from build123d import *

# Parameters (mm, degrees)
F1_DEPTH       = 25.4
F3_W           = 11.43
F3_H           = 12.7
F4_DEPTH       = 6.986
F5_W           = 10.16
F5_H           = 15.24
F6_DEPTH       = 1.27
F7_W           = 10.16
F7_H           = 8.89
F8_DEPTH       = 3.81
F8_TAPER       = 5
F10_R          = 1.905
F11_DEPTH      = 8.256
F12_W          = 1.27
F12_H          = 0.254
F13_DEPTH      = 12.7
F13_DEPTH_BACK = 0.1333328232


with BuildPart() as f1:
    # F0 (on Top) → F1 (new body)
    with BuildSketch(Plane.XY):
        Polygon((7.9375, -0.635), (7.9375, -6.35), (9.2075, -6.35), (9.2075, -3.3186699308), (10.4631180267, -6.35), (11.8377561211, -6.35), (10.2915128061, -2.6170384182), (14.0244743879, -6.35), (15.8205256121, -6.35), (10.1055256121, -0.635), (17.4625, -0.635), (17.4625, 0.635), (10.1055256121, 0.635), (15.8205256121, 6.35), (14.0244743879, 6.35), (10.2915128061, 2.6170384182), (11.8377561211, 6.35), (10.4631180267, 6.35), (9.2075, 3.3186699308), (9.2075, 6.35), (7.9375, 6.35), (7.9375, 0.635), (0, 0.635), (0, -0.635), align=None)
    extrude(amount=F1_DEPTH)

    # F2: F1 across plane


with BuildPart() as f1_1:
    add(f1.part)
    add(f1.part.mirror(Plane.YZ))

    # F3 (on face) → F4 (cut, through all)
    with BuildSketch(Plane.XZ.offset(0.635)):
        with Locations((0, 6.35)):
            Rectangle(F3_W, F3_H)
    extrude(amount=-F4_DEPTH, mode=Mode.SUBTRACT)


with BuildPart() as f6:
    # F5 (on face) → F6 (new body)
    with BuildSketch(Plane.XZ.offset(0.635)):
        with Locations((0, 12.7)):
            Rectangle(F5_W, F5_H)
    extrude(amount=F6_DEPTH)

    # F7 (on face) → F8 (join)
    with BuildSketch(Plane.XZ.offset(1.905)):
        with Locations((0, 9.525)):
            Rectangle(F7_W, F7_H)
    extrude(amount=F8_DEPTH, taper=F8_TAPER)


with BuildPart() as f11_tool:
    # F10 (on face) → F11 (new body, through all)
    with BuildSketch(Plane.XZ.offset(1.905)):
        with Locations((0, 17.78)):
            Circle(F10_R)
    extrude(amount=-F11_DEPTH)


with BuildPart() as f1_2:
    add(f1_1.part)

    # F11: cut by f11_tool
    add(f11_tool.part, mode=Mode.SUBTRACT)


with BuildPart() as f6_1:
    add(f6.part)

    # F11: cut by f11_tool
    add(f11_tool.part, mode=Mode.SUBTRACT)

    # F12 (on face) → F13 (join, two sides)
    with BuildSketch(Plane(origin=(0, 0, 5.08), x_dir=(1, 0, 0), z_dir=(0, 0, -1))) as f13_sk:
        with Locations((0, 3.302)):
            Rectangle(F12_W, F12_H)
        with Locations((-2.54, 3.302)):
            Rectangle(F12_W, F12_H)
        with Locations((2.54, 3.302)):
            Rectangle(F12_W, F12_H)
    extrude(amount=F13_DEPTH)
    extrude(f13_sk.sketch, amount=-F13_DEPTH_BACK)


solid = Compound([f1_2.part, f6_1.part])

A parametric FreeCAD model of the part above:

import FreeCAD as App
import Part
import Sketcher
from FreeCAD import Vector
Q = App.Units.Quantity

doc = App.newDocument("Part")
body = doc.addObject("PartDesign::Body", "Body")

# Sketch on XY plane
sketch1 = body.newObject("Sketcher::SketchObject", "Sketch")
sketch1.AttachmentSupport = (doc.getObject("XY_Plane"), [""])
sketch1.MapMode = "FlatFace"
sketch1.addGeometry([
    Part.LineSegment(Vector(7.9, -0.6, 0), Vector(7.9, -6.3, 0)),  # 0
    Part.LineSegment(Vector(7.9, -6.3, 0), Vector(9.2, -6.3, 0)),  # 1
    Part.LineSegment(Vector(9.2, -6.3, 0), Vector(9.2, -3.3, 0)),  # 2
    Part.LineSegment(Vector(9.2, -3.3, 0), Vector(10.5, -6.3, 0)),  # 3
    Part.LineSegment(Vector(10.5, -6.3, 0), Vector(11.8, -6.3, 0)),  # 4
    Part.LineSegment(Vector(11.8, -6.3, 0), Vector(10.3, -2.6, 0)),  # 5
    Part.LineSegment(Vector(10.3, -2.6, 0), Vector(14, -6.3, 0)),  # 6
    Part.LineSegment(Vector(14, -6.3, 0), Vector(15.8, -6.3, 0)),  # 7
    Part.LineSegment(Vector(15.8, -6.3, 0), Vector(10.1, -0.6, 0)),  # 8
    Part.LineSegment(Vector(10.1, -0.6, 0), Vector(17.5, -0.6, 0)),  # 9
    Part.LineSegment(Vector(17.5, -0.6, 0), Vector(17.5, 0.6, 0)),  # 10
    Part.LineSegment(Vector(17.5, 0.6, 0), Vector(10.1, 0.6, 0)),  # 11
    Part.LineSegment(Vector(10.1, 0.6, 0), Vector(15.8, 6.3, 0)),  # 12
    Part.LineSegment(Vector(15.8, 6.3, 0), Vector(14, 6.3, 0)),  # 13
    Part.LineSegment(Vector(14, 6.3, 0), Vector(10.3, 2.6, 0)),  # 14
    Part.LineSegment(Vector(10.3, 2.6, 0), Vector(11.8, 6.3, 0)),  # 15
    Part.LineSegment(Vector(11.8, 6.3, 0), Vector(10.5, 6.3, 0)),  # 16
    Part.LineSegment(Vector(10.5, 6.3, 0), Vector(9.2, 3.3, 0)),  # 17
    Part.LineSegment(Vector(9.2, 3.3, 0), Vector(9.2, 6.3, 0)),  # 18
    Part.LineSegment(Vector(9.2, 6.3, 0), Vector(7.9, 6.3, 0)),  # 19
    Part.LineSegment(Vector(7.9, 6.3, 0), Vector(7.9, 0.6, 0)),  # 20
    Part.LineSegment(Vector(7.9, 0.6, 0), Vector(0, 0.6, 0)),  # 21
    Part.LineSegment(Vector(0, 0.6, 0), Vector(0, -0.6, 0)),  # 22
    Part.LineSegment(Vector(0, -0.6, 0), Vector(7.9, -0.6, 0)),  # 23
], False)
sketch1.addConstraint([
    Sketcher.Constraint("Coincident", 0, 2, 1, 1),
    Sketcher.Constraint("Coincident", 1, 2, 2, 1),
    Sketcher.Constraint("Coincident", 2, 2, 3, 1),
    Sketcher.Constraint("Coincident", 3, 2, 4, 1),
    Sketcher.Constraint("Coincident", 4, 2, 5, 1),
    Sketcher.Constraint("Coincident", 5, 2, 6, 1),
    Sketcher.Constraint("Coincident", 6, 2, 7, 1),
    Sketcher.Constraint("Coincident", 7, 2, 8, 1),
    Sketcher.Constraint("Coincident", 8, 2, 9, 1),
    Sketcher.Constraint("Coincident", 9, 2, 10, 1),
    Sketcher.Constraint("Coincident", 10, 2, 11, 1),
    Sketcher.Constraint("Coincident", 11, 2, 12, 1),
    Sketcher.Constraint("Coincident", 12, 2, 13, 1),
    Sketcher.Constraint("Coincident", 13, 2, 14, 1),
    Sketcher.Constraint("Coincident", 14, 2, 15, 1),
    Sketcher.Constraint("Coincident", 15, 2, 16, 1),
    Sketcher.Constraint("Coincident", 16, 2, 17, 1),
    Sketcher.Constraint("Coincident", 17, 2, 18, 1),
    Sketcher.Constraint("Coincident", 18, 2, 19, 1),
    Sketcher.Constraint("Coincident", 19, 2, 20, 1),
    Sketcher.Constraint("Coincident", 20, 2, 21, 1),
    Sketcher.Constraint("Coincident", 21, 2, 22, 1),
    Sketcher.Constraint("Coincident", 22, 2, 23, 1),
    Sketcher.Constraint("Coincident", 23, 2, 0, 1),
    Sketcher.Constraint("Vertical", 0),
    Sketcher.Constraint("Horizontal", 1),
    Sketcher.Constraint("Vertical", 2),
    Sketcher.Constraint("Horizontal", 4),
    Sketcher.Constraint("Horizontal", 7),
    Sketcher.Constraint("Horizontal", 9),
    Sketcher.Constraint("Vertical", 10),
    Sketcher.Constraint("Horizontal", 11),
    Sketcher.Constraint("Horizontal", 13),
    Sketcher.Constraint("Horizontal", 16),
    Sketcher.Constraint("Vertical", 18),
    Sketcher.Constraint("Horizontal", 19),
    Sketcher.Constraint("Vertical", 20),
    Sketcher.Constraint("Horizontal", 21),
    Sketcher.Constraint("Vertical", 22),
    Sketcher.Constraint("Horizontal", 23),
    Sketcher.Constraint("Symmetric", 21, 2, 22, 2, -1, 1),
    Sketcher.Constraint("Symmetric", 8, 2, 11, 2, -1),
    Sketcher.Constraint("Symmetric", 7, 2, 12, 2, -1),
    Sketcher.Constraint("Symmetric", 5, 2, 14, 2, -1),
    Sketcher.Constraint("Symmetric", 4, 2, 15, 2, -1),
    Sketcher.Constraint("Symmetric", 2, 2, 17, 2, -1),
    Sketcher.Constraint("Symmetric", 0, 2, 19, 2, -1),
    Sketcher.Constraint("Parallel", 3, 5),
    Sketcher.Constraint("Parallel", 6, 8),
    Sketcher.Constraint("Perpendicular", 8, 12),
    Sketcher.Constraint("Parallel", 12, 14),
    Sketcher.Constraint("Parallel", 15, 17),
    Sketcher.Constraint("Horizontal", 1, 2, 3, 2),
    Sketcher.Constraint("Horizontal", 4, 2, 6, 2),
    Sketcher.Constraint("Horizontal", 11, 2, 20, 2),
    Sketcher.Constraint("Equal", 19, 10),
    Sketcher.Constraint("DistanceX", 1, 1, 1, 2, Q("0.05 in")),
    Sketcher.Constraint("Angle", 3, Q("-67.5 deg")),
    Sketcher.Constraint("DistanceX", 21, 2, 21, 1, Q("0.3125 in")),
    Sketcher.Constraint("DistanceY", 0, 2, 0, 1, Q("0.225 in")),
    Sketcher.Constraint("DistanceX", -1, 1, 9, 2, Q("0.6875 in")),
    Sketcher.Constraint("DistanceX", 4, 1, 4, 2, 1.374638),
    Sketcher.Constraint("DistanceX", 7, 1, 7, 2, 1.796051),
    Sketcher.Constraint("DistanceY", 2, 1, 2, 2, 3.03133),
    Sketcher.Constraint("Distance", 5, 4.040529),
])
pad1 = body.newObject("PartDesign::Pad", "Pad")
pad1.Profile = sketch1
pad1.Length = Q("1 in")
body2 = doc.addObject("PartDesign::Body", "Body001")
doc.recompute()

body2.BaseFeature = body
doc.recompute()

mirroring = doc.addObject("Part::Mirroring", "Mirroring")
mirroring.Source = body
mirroring.Base = Vector(0, 0, 0)
mirroring.Normal = Vector(1, 0, 0)
body3 = doc.addObject("PartDesign::Body", "Body002")
body3.BaseFeature = mirroring
boolean = body2.newObject("PartDesign::Boolean", "Boolean")
boolean.Type = "Fuse"
boolean.addObjects([body3])
doc.recompute()

# Sketch on XZ plane
sketch2 = body2.newObject("Sketcher::SketchObject", "Sketch001")
sketch2.AttachmentSupport = (doc.getObject("XZ_Plane001"), [""])
sketch2.MapMode = "FlatFace"
sketch2.AttachmentOffset = App.Placement(Vector(0, 0, 0.025 * 25.4), App.Rotation())
sketch2.addGeometry([
    Part.LineSegment(Vector(-6, 13, 0), Vector(-6, 0, 0)),
    Part.LineSegment(Vector(-6, 0, 0), Vector(6, 0, 0)),
    Part.LineSegment(Vector(6, 0, 0), Vector(6, 13, 0)),
    Part.LineSegment(Vector(6, 13, 0), Vector(-6, 13, 0)),
], False)
sketch2.addConstraint([
    Sketcher.Constraint("Coincident", 0, 2, 1, 1),
    Sketcher.Constraint("Coincident", 1, 2, 2, 1),
    Sketcher.Constraint("Coincident", 2, 2, 3, 1),
    Sketcher.Constraint("Coincident", 3, 2, 0, 1),
    Sketcher.Constraint("Vertical", 0),
    Sketcher.Constraint("Horizontal", 1),
    Sketcher.Constraint("Vertical", 2),
    Sketcher.Constraint("Horizontal", 3),
    Sketcher.Constraint("Symmetric", 0, 2, 1, 2, -1, 1),
    Sketcher.Constraint("DistanceY", 0, 2, 0, 1, Q("0.5 in")),
    Sketcher.Constraint("DistanceX", 1, 1, 1, 2, Q("0.45 in")),
])
pocket1 = body2.newObject("PartDesign::Pocket", "Pocket")
pocket1.Profile = sketch2
pocket1.Type = "ThroughAll"
body4 = doc.addObject("PartDesign::Body", "Body003")

# Sketch on XZ plane
sketch3 = body4.newObject("Sketcher::SketchObject", "Sketch002")
sketch3.AttachmentSupport = (doc.getObject("XZ_Plane003"), [""])
sketch3.MapMode = "FlatFace"
sketch3.AttachmentOffset = App.Placement(Vector(0, 0, 0.025 * 25.4), App.Rotation())
sketch3.addGeometry([
    Part.LineSegment(Vector(-5, 20, 0), Vector(-5, 5, 0)),
    Part.LineSegment(Vector(-5, 5, 0), Vector(5, 5, 0)),
    Part.LineSegment(Vector(5, 5, 0), Vector(5, 20, 0)),
    Part.LineSegment(Vector(5, 20, 0), Vector(-5, 20, 0)),
], False)
sketch3.addConstraint([
    Sketcher.Constraint("Coincident", 0, 2, 1, 1),
    Sketcher.Constraint("Coincident", 1, 2, 2, 1),
    Sketcher.Constraint("Coincident", 2, 2, 3, 1),
    Sketcher.Constraint("Coincident", 3, 2, 0, 1),
    Sketcher.Constraint("Vertical", 0),
    Sketcher.Constraint("Horizontal", 1),
    Sketcher.Constraint("Vertical", 2),
    Sketcher.Constraint("Horizontal", 3),
    Sketcher.Constraint("DistanceX", 1, 1, 1, 2, Q("0.4 in")),
    Sketcher.Constraint("DistanceY", 0, 2, 0, 1, Q("0.6 in")),
    Sketcher.Constraint("DistanceX", 0, 2, -1, 1, Q("0.2 in")),
    Sketcher.Constraint("DistanceY", -1, 1, 0, 2, Q("0.2 in")),
])
pad2 = body4.newObject("PartDesign::Pad", "Pad001")
pad2.Profile = sketch3
pad2.Length = Q("0.05 in")

# Sketch on XZ plane
sketch4 = body4.newObject("Sketcher::SketchObject", "Sketch003")
sketch4.AttachmentSupport = (doc.getObject("XZ_Plane003"), [""])
sketch4.MapMode = "FlatFace"
sketch4.AttachmentOffset = App.Placement(Vector(0, 0, 0.075 * 25.4), App.Rotation())
sketch4.addGeometry([
    Part.LineSegment(Vector(-5, 14, 0), Vector(-5, 5, 0)),
    Part.LineSegment(Vector(-5, 5, 0), Vector(5, 5, 0)),
    Part.LineSegment(Vector(5, 5, 0), Vector(5, 14, 0)),
    Part.LineSegment(Vector(5, 14, 0), Vector(-5, 14, 0)),
], False)
sketch4.addConstraint([
    Sketcher.Constraint("Coincident", 0, 2, 1, 1),
    Sketcher.Constraint("Coincident", 1, 2, 2, 1),
    Sketcher.Constraint("Coincident", 2, 2, 3, 1),
    Sketcher.Constraint("Coincident", 3, 2, 0, 1),
    Sketcher.Constraint("Vertical", 0),
    Sketcher.Constraint("Horizontal", 1),
    Sketcher.Constraint("Vertical", 2),
    Sketcher.Constraint("Horizontal", 3),
    Sketcher.Constraint("DistanceX", 1, 1, 1, 2, Q("0.4 in")),
    Sketcher.Constraint("DistanceY", 0, 2, 0, 1, Q("0.35 in")),
    Sketcher.Constraint("DistanceX", 0, 2, -1, 1, Q("0.2 in")),
    Sketcher.Constraint("DistanceY", -1, 1, 0, 2, Q("0.2 in")),
])
pad3 = body4.newObject("PartDesign::Pad", "Pad002")
pad3.Profile = sketch4
pad3.Length = Q("0.15 in")
pad3.TaperAngle = -5
body5 = doc.addObject("PartDesign::Body", "Body004")

# Sketch on XZ plane
sketch5 = body5.newObject("Sketcher::SketchObject", "Sketch004")
sketch5.AttachmentSupport = (doc.getObject("XZ_Plane004"), [""])
sketch5.MapMode = "FlatFace"
sketch5.AttachmentOffset = App.Placement(Vector(0, 0, 0.075 * 25.4), App.Rotation())
sketch5.addGeometry(Part.Circle(Vector(0, 17.8, 0), Vector(0, 0, 1), 1.9), False)
sketch5.addConstraint([
    Sketcher.Constraint("PointOnObject", 0, 3, -2),
    Sketcher.Constraint("Diameter", 0, Q("0.15 in")),
    Sketcher.Constraint("DistanceY", -1, 1, 0, 3, Q("0.7 in")),
])
pad4 = body5.newObject("PartDesign::Pad", "Pad003")
pad4.Profile = sketch5
pad4.Length = 8.256
pad4.Reversed = True
doc.recompute()

body6 = doc.addObject("PartDesign::Body", "Body005")
body6.BaseFeature = body5
boolean2 = body2.newObject("PartDesign::Boolean", "Boolean001")
boolean2.Type = "Cut"
boolean2.addObjects([body6])
doc.recompute()

boolean3 = body4.newObject("PartDesign::Boolean", "Boolean002")
boolean3.Type = "Cut"
boolean3.addObjects([body5])

# Sketch on XY plane
sketch6 = body4.newObject("Sketcher::SketchObject", "Sketch005")
sketch6.AttachmentSupport = (doc.getObject("XY_Plane003"), [""])
sketch6.MapMode = "FlatFace"
sketch6.AttachmentOffset = App.Placement(Vector(0, 0, 0.2 * 25.4), App.Rotation())
sketch6.addGeometry([
    Part.LineSegment(Vector(-0.64, -3.43, 0), Vector(-0.64, -3.17, 0)),  # 0
    Part.LineSegment(Vector(-0.64, -3.17, 0), Vector(0.64, -3.17, 0)),  # 1
    Part.LineSegment(Vector(0.64, -3.17, 0), Vector(0.64, -3.43, 0)),  # 2
    Part.LineSegment(Vector(0.64, -3.43, 0), Vector(-0.64, -3.43, 0)),  # 3
    Part.LineSegment(Vector(-3.17, -3.43, 0), Vector(-3.17, -3.17, 0)),  # 4
    Part.LineSegment(Vector(-3.17, -3.17, 0), Vector(-1.91, -3.17, 0)),  # 5
    Part.LineSegment(Vector(-1.91, -3.17, 0), Vector(-1.91, -3.43, 0)),  # 6
    Part.LineSegment(Vector(-1.91, -3.43, 0), Vector(-3.17, -3.43, 0)),  # 7
    Part.LineSegment(Vector(1.91, -3.43, 0), Vector(1.91, -3.17, 0)),  # 8
    Part.LineSegment(Vector(1.91, -3.17, 0), Vector(3.17, -3.17, 0)),  # 9
    Part.LineSegment(Vector(3.17, -3.17, 0), Vector(3.17, -3.43, 0)),  # 10
    Part.LineSegment(Vector(3.17, -3.43, 0), Vector(1.91, -3.43, 0)),  # 11
], False)
sketch6.addConstraint([
    Sketcher.Constraint("Coincident", 0, 2, 1, 1),
    Sketcher.Constraint("Coincident", 1, 2, 2, 1),
    Sketcher.Constraint("Coincident", 2, 2, 3, 1),
    Sketcher.Constraint("Coincident", 3, 2, 0, 1),
    Sketcher.Constraint("Coincident", 4, 2, 5, 1),
    Sketcher.Constraint("Coincident", 5, 2, 6, 1),
    Sketcher.Constraint("Coincident", 6, 2, 7, 1),
    Sketcher.Constraint("Coincident", 7, 2, 4, 1),
    Sketcher.Constraint("Coincident", 8, 2, 9, 1),
    Sketcher.Constraint("Coincident", 9, 2, 10, 1),
    Sketcher.Constraint("Coincident", 10, 2, 11, 1),
    Sketcher.Constraint("Coincident", 11, 2, 8, 1),
    Sketcher.Constraint("Vertical", 0),
    Sketcher.Constraint("Horizontal", 1),
    Sketcher.Constraint("Vertical", 2),
    Sketcher.Constraint("Horizontal", 3),
    Sketcher.Constraint("Vertical", 4),
    Sketcher.Constraint("Horizontal", 5),
    Sketcher.Constraint("Vertical", 6),
    Sketcher.Constraint("Horizontal", 7),
    Sketcher.Constraint("Vertical", 8),
    Sketcher.Constraint("Horizontal", 9),
    Sketcher.Constraint("Vertical", 10),
    Sketcher.Constraint("Horizontal", 11),
    Sketcher.Constraint("Symmetric", 5, 2, 8, 2, -2),
    Sketcher.Constraint("Symmetric", 7, 2, 10, 2, -2),
    Sketcher.Constraint("Horizontal", 1, 2, 4, 2),
    Sketcher.Constraint("Horizontal", 3, 2, 6, 2),
    Sketcher.Constraint("Equal", 3, 5),
    Sketcher.Constraint("DistanceX", 1, 1, 1, 2, Q("0.05 in")),
    Sketcher.Constraint("DistanceY", 0, 1, 0, 2, Q("0.01 in")),
    Sketcher.Constraint("DistanceX", 4, 2, 0, 2, Q("0.1 in")),
    Sketcher.Constraint("DistanceX", 0, 2, 8, 2, Q("0.1 in")),
    Sketcher.Constraint("DistanceY", 0, 2, -1, 1, Q("0.125 in")),
])
pad5 = body4.newObject("PartDesign::Pad", "Pad004")
pad5.Profile = sketch6
pad5.Type = "TwoLengths"
pad5.Length = Q("0.5 in")
pad5.Length2 = 0.133333
pad5.Reversed = True
mirroring.Visibility = False

doc.recompute()
